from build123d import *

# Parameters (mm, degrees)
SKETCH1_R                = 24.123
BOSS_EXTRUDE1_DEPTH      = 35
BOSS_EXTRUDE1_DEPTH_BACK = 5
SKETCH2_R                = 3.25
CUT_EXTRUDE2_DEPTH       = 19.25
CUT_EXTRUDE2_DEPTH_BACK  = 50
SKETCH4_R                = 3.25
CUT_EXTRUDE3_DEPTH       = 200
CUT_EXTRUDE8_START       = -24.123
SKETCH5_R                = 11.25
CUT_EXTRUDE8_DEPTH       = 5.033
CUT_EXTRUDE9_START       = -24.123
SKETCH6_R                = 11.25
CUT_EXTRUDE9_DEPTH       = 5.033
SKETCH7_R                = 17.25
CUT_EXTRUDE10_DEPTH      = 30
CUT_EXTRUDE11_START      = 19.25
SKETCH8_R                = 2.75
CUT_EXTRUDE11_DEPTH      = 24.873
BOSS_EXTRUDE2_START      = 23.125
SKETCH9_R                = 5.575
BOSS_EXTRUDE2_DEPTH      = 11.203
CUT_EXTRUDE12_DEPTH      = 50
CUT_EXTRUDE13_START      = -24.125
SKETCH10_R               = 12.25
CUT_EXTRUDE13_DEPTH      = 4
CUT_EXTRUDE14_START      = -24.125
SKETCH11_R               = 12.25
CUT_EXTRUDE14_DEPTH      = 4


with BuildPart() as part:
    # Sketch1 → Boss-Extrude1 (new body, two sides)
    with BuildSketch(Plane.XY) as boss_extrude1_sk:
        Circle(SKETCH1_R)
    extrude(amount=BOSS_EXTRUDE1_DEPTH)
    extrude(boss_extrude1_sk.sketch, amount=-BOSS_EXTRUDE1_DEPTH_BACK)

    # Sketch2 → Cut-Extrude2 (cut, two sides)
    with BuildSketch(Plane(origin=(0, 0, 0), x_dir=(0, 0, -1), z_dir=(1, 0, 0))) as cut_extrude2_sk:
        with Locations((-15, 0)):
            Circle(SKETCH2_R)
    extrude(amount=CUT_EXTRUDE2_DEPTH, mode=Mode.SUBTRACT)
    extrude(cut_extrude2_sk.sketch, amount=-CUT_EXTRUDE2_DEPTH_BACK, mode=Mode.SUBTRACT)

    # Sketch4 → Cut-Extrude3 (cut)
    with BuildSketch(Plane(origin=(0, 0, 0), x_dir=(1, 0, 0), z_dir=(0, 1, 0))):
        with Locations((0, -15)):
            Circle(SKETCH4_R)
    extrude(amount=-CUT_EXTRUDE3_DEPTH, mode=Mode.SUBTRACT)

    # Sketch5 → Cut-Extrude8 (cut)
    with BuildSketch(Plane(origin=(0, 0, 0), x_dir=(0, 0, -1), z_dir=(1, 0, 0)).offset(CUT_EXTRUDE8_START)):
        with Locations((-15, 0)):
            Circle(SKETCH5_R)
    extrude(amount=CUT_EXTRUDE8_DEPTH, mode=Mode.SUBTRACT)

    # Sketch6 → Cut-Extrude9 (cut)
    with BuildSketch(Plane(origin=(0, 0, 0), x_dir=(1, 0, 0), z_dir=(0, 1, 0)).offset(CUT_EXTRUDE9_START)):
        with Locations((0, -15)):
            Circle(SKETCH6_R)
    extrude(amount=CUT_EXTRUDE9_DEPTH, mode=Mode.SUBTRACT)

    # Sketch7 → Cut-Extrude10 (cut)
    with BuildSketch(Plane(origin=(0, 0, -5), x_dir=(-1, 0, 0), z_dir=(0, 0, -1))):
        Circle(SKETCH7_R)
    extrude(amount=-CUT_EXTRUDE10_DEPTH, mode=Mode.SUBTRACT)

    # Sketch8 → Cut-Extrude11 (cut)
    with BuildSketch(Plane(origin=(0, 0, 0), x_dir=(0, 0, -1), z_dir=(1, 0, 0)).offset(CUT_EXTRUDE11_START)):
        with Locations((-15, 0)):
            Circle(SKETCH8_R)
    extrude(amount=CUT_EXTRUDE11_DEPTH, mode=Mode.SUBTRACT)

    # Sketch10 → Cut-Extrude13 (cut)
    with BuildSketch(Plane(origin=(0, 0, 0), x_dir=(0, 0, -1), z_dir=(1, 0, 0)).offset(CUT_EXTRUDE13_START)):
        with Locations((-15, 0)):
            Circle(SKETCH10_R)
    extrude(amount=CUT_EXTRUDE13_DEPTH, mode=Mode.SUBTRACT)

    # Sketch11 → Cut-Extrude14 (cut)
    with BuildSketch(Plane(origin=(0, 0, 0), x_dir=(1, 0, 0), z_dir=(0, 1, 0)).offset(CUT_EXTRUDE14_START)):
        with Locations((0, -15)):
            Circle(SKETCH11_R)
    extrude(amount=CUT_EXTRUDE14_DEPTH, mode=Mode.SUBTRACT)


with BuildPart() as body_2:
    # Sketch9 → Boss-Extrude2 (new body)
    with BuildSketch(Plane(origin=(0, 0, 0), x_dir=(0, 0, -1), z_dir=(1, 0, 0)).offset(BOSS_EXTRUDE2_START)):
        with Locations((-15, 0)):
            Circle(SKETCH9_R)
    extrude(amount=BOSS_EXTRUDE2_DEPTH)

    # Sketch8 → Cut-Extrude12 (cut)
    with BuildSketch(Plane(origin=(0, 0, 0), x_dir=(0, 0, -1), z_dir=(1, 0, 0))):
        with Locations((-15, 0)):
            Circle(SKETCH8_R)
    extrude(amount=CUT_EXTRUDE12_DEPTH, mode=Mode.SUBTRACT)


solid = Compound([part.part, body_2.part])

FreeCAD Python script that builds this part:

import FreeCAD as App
import Part
import Sketcher
from FreeCAD import Vector

doc = App.newDocument("Part")
body = doc.addObject("PartDesign::Body", "Body")

# Sketch on XY plane
sketch1 = body.newObject("Sketcher::SketchObject", "Sketch")
sketch1.AttachmentSupport = (doc.getObject("XY_Plane"), [""])
sketch1.MapMode = "FlatFace"
sketch1.addGeometry(Part.Circle(Vector(0, 0, 0), Vector(0, 0, 1), 24), False)
sketch1.addConstraint([
    Sketcher.Constraint("Coincident", 0, 3, -1, 1),
    Sketcher.Constraint("Diameter", 0, 48.246),
])
pad1 = body.newObject("PartDesign::Pad", "Pad")
pad1.Profile = sketch1
pad1.Type = "TwoLengths"
pad1.Length = 35
pad1.Length2 = 5

# Sketch on YZ plane
sketch2 = body.newObject("Sketcher::SketchObject", "Sketch001")
sketch2.AttachmentSupport = (doc.getObject("YZ_Plane"), [""])
sketch2.MapMode = "FlatFace"
sketch2.addGeometry(Part.Circle(Vector(0, 15, 0), Vector(0, 0, 1), 3.2), False)
sketch2.addConstraint([
    Sketcher.Constraint("PointOnObject", 0, 3, -2),
    Sketcher.Constraint("Diameter", 0, 6.5),
    Sketcher.Constraint("DistanceY", -1, 1, 0, 3, 15.0),
])
pocket1 = body.newObject("PartDesign::Pocket", "Pocket")
pocket1.Profile = sketch2
pocket1.Type = "TwoLengths"
pocket1.Length = 19.25
pocket1.Length2 = 50
pocket1.Reversed = True

# Sketch on XZ plane
sketch3 = body.newObject("Sketcher::SketchObject", "Sketch002")
sketch3.AttachmentSupport = (doc.getObject("XZ_Plane"), [""])
sketch3.MapMode = "FlatFace"
sketch3.addGeometry(Part.Circle(Vector(0, 15, 0), Vector(0, 0, 1), 3.2), False)
sketch3.addConstraint([
    Sketcher.Constraint("PointOnObject", 0, 3, -2),
    Sketcher.Constraint("Diameter", 0, 6.5),
    Sketcher.Constraint("DistanceY", -1, 1, 0, 3, 15.0),
])
pocket2 = body.newObject("PartDesign::Pocket", "Pocket001")
pocket2.Profile = sketch3
pocket2.Length = 200
pocket2.Reversed = True

# Sketch on YZ plane
sketch4 = body.newObject("Sketcher::SketchObject", "Sketch003")
sketch4.AttachmentSupport = (doc.getObject("YZ_Plane"), [""])
sketch4.MapMode = "FlatFace"
sketch4.AttachmentOffset = App.Placement(Vector(0, 0, -24.123), App.Rotation())
sketch4.addGeometry(Part.Circle(Vector(0, 15, 0), Vector(0, 0, 1), 11), False)
sketch4.addConstraint([
    Sketcher.Constraint("PointOnObject", 0, 3, -2),
    Sketcher.Constraint("Diameter", 0, 22.5),
    Sketcher.Constraint("DistanceY", -1, 1, 0, 3, 15.0),
])
pocket3 = body.newObject("PartDesign::Pocket", "Pocket002")
pocket3.Profile = sketch4
pocket3.Length = 5.033
pocket3.Reversed = True

# Sketch on XZ plane
sketch5 = body.newObject("Sketcher::SketchObject", "Sketch004")
sketch5.AttachmentSupport = (doc.getObject("XZ_Plane"), [""])
sketch5.MapMode = "FlatFace"
sketch5.AttachmentOffset = App.Placement(Vector(0, 0, 24.123), App.Rotation())
sketch5.addGeometry(Part.Circle(Vector(0, 15, 0), Vector(0, 0, 1), 11), False)
sketch5.addConstraint([
    Sketcher.Constraint("PointOnObject", 0, 3, -2),
    Sketcher.Constraint("Diameter", 0, 22.5),
    Sketcher.Constraint("DistanceY", -1, 1, 0, 3, 15.0),
])
pocket4 = body.newObject("PartDesign::Pocket", "Pocket003")
pocket4.Profile = sketch5
pocket4.Length = 5.033

# Sketch on XY plane
sketch6 = body.newObject("Sketcher::SketchObject", "Sketch005")
sketch6.AttachmentSupport = (doc.getObject("XY_Plane"), [""])
sketch6.MapMode = "FlatFace"
sketch6.AttachmentOffset = App.Placement(Vector(0, 0, -5), App.Rotation())
sketch6.addGeometry(Part.Circle(Vector(0, 0, 0), Vector(0, 0, 1), 17), False)
sketch6.addConstraint([
    Sketcher.Constraint("Coincident", 0, 3, -1, 1),
    Sketcher.Constraint("Diameter", 0, 34.5),
])
pocket5 = body.newObject("PartDesign::Pocket", "Pocket004")
pocket5.Profile = sketch6
pocket5.Length = 30
pocket5.Reversed = True

# Sketch on YZ plane
sketch7 = body.newObject("Sketcher::SketchObject", "Sketch006")
sketch7.AttachmentSupport = (doc.getObject("YZ_Plane"), [""])
sketch7.MapMode = "FlatFace"
sketch7.AttachmentOffset = App.Placement(Vector(0, 0, 19.25), App.Rotation())
sketch7.addGeometry(Part.Circle(Vector(0, 15, 0), Vector(0, 0, 1), 2.8), False)
sketch7.addConstraint([
    Sketcher.Constraint("PointOnObject", 0, 3, -2),
    Sketcher.Constraint("Diameter", 0, 5.5),
    Sketcher.Constraint("DistanceY", -1, 1, 0, 3, 15.0),
])
pocket6 = body.newObject("PartDesign::Pocket", "Pocket005")
pocket6.Profile = sketch7
pocket6.Length = 24.873
pocket6.Reversed = True

# Sketch on YZ plane
sketch8 = body.newObject("Sketcher::SketchObject", "Sketch007")
sketch8.AttachmentSupport = (doc.getObject("YZ_Plane"), [""])
sketch8.MapMode = "FlatFace"
sketch8.AttachmentOffset = App.Placement(Vector(0, 0, -24.125), App.Rotation())
sketch8.addGeometry(Part.Circle(Vector(0, 15, 0), Vector(0, 0, 1), 12), False)
sketch8.addConstraint([
    Sketcher.Constraint("PointOnObject", 0, 3, -2),
    Sketcher.Constraint("Diameter", 0, 24.5),
    Sketcher.Constraint("DistanceY", -1, 1, 0, 3, 15.0),
])
pocket7 = body.newObject("PartDesign::Pocket", "Pocket006")
pocket7.Profile = sketch8
pocket7.Length = 4
pocket7.Reversed = True

# Sketch on XZ plane
sketch9 = body.newObject("Sketcher::SketchObject", "Sketch008")
sketch9.AttachmentSupport = (doc.getObject("XZ_Plane"), [""])
sketch9.MapMode = "FlatFace"
sketch9.AttachmentOffset = App.Placement(Vector(0, 0, 24.125), App.Rotation())
sketch9.addGeometry(Part.Circle(Vector(0, 15, 0), Vector(0, 0, 1), 12), False)
sketch9.addConstraint([
    Sketcher.Constraint("PointOnObject", 0, 3, -2),
    Sketcher.Constraint("Diameter", 0, 24.5),
    Sketcher.Constraint("DistanceY", -1, 1, 0, 3, 15.0),
])
pocket8 = body.newObject("PartDesign::Pocket", "Pocket007")
pocket8.Profile = sketch9
pocket8.Length = 4
body2 = doc.addObject("PartDesign::Body", "Body001")

# Sketch on YZ plane
sketch10 = body2.newObject("Sketcher::SketchObject", "Sketch009")
sketch10.AttachmentSupport = (doc.getObject("YZ_Plane001"), [""])
sketch10.MapMode = "FlatFace"
sketch10.AttachmentOffset = App.Placement(Vector(0, 0, 23.125), App.Rotation())
sketch10.addGeometry(Part.Circle(Vector(0, 15, 0), Vector(0, 0, 1), 6), False)
sketch10.addConstraint([
    Sketcher.Constraint("PointOnObject", 0, 3, -2),
    Sketcher.Constraint("Diameter", 0, 11.15),
    Sketcher.Constraint("DistanceY", -1, 1, 0, 3, 15.0),
])
pad2 = body2.newObject("PartDesign::Pad", "Pad001")
pad2.Profile = sketch10
pad2.Length = 11.203

# Sketch on YZ plane
sketch11 = body2.newObject("Sketcher::SketchObject", "Sketch010")
sketch11.AttachmentSupport = (doc.getObject("YZ_Plane001"), [""])
sketch11.MapMode = "FlatFace"
sketch11.addGeometry(Part.Circle(Vector(0, 15, 0), Vector(0, 0, 1), 2.8), False)
sketch11.addConstraint([
    Sketcher.Constraint("PointOnObject", 0, 3, -2),
    Sketcher.Constraint("Diameter", 0, 5.5),
    Sketcher.Constraint("DistanceY", -1, 1, 0, 3, 15.0),
])
pocket9 = body2.newObject("PartDesign::Pocket", "Pocket008")
pocket9.Profile = sketch11
pocket9.Length = 50
pocket9.Reversed = True

doc.recompute()
